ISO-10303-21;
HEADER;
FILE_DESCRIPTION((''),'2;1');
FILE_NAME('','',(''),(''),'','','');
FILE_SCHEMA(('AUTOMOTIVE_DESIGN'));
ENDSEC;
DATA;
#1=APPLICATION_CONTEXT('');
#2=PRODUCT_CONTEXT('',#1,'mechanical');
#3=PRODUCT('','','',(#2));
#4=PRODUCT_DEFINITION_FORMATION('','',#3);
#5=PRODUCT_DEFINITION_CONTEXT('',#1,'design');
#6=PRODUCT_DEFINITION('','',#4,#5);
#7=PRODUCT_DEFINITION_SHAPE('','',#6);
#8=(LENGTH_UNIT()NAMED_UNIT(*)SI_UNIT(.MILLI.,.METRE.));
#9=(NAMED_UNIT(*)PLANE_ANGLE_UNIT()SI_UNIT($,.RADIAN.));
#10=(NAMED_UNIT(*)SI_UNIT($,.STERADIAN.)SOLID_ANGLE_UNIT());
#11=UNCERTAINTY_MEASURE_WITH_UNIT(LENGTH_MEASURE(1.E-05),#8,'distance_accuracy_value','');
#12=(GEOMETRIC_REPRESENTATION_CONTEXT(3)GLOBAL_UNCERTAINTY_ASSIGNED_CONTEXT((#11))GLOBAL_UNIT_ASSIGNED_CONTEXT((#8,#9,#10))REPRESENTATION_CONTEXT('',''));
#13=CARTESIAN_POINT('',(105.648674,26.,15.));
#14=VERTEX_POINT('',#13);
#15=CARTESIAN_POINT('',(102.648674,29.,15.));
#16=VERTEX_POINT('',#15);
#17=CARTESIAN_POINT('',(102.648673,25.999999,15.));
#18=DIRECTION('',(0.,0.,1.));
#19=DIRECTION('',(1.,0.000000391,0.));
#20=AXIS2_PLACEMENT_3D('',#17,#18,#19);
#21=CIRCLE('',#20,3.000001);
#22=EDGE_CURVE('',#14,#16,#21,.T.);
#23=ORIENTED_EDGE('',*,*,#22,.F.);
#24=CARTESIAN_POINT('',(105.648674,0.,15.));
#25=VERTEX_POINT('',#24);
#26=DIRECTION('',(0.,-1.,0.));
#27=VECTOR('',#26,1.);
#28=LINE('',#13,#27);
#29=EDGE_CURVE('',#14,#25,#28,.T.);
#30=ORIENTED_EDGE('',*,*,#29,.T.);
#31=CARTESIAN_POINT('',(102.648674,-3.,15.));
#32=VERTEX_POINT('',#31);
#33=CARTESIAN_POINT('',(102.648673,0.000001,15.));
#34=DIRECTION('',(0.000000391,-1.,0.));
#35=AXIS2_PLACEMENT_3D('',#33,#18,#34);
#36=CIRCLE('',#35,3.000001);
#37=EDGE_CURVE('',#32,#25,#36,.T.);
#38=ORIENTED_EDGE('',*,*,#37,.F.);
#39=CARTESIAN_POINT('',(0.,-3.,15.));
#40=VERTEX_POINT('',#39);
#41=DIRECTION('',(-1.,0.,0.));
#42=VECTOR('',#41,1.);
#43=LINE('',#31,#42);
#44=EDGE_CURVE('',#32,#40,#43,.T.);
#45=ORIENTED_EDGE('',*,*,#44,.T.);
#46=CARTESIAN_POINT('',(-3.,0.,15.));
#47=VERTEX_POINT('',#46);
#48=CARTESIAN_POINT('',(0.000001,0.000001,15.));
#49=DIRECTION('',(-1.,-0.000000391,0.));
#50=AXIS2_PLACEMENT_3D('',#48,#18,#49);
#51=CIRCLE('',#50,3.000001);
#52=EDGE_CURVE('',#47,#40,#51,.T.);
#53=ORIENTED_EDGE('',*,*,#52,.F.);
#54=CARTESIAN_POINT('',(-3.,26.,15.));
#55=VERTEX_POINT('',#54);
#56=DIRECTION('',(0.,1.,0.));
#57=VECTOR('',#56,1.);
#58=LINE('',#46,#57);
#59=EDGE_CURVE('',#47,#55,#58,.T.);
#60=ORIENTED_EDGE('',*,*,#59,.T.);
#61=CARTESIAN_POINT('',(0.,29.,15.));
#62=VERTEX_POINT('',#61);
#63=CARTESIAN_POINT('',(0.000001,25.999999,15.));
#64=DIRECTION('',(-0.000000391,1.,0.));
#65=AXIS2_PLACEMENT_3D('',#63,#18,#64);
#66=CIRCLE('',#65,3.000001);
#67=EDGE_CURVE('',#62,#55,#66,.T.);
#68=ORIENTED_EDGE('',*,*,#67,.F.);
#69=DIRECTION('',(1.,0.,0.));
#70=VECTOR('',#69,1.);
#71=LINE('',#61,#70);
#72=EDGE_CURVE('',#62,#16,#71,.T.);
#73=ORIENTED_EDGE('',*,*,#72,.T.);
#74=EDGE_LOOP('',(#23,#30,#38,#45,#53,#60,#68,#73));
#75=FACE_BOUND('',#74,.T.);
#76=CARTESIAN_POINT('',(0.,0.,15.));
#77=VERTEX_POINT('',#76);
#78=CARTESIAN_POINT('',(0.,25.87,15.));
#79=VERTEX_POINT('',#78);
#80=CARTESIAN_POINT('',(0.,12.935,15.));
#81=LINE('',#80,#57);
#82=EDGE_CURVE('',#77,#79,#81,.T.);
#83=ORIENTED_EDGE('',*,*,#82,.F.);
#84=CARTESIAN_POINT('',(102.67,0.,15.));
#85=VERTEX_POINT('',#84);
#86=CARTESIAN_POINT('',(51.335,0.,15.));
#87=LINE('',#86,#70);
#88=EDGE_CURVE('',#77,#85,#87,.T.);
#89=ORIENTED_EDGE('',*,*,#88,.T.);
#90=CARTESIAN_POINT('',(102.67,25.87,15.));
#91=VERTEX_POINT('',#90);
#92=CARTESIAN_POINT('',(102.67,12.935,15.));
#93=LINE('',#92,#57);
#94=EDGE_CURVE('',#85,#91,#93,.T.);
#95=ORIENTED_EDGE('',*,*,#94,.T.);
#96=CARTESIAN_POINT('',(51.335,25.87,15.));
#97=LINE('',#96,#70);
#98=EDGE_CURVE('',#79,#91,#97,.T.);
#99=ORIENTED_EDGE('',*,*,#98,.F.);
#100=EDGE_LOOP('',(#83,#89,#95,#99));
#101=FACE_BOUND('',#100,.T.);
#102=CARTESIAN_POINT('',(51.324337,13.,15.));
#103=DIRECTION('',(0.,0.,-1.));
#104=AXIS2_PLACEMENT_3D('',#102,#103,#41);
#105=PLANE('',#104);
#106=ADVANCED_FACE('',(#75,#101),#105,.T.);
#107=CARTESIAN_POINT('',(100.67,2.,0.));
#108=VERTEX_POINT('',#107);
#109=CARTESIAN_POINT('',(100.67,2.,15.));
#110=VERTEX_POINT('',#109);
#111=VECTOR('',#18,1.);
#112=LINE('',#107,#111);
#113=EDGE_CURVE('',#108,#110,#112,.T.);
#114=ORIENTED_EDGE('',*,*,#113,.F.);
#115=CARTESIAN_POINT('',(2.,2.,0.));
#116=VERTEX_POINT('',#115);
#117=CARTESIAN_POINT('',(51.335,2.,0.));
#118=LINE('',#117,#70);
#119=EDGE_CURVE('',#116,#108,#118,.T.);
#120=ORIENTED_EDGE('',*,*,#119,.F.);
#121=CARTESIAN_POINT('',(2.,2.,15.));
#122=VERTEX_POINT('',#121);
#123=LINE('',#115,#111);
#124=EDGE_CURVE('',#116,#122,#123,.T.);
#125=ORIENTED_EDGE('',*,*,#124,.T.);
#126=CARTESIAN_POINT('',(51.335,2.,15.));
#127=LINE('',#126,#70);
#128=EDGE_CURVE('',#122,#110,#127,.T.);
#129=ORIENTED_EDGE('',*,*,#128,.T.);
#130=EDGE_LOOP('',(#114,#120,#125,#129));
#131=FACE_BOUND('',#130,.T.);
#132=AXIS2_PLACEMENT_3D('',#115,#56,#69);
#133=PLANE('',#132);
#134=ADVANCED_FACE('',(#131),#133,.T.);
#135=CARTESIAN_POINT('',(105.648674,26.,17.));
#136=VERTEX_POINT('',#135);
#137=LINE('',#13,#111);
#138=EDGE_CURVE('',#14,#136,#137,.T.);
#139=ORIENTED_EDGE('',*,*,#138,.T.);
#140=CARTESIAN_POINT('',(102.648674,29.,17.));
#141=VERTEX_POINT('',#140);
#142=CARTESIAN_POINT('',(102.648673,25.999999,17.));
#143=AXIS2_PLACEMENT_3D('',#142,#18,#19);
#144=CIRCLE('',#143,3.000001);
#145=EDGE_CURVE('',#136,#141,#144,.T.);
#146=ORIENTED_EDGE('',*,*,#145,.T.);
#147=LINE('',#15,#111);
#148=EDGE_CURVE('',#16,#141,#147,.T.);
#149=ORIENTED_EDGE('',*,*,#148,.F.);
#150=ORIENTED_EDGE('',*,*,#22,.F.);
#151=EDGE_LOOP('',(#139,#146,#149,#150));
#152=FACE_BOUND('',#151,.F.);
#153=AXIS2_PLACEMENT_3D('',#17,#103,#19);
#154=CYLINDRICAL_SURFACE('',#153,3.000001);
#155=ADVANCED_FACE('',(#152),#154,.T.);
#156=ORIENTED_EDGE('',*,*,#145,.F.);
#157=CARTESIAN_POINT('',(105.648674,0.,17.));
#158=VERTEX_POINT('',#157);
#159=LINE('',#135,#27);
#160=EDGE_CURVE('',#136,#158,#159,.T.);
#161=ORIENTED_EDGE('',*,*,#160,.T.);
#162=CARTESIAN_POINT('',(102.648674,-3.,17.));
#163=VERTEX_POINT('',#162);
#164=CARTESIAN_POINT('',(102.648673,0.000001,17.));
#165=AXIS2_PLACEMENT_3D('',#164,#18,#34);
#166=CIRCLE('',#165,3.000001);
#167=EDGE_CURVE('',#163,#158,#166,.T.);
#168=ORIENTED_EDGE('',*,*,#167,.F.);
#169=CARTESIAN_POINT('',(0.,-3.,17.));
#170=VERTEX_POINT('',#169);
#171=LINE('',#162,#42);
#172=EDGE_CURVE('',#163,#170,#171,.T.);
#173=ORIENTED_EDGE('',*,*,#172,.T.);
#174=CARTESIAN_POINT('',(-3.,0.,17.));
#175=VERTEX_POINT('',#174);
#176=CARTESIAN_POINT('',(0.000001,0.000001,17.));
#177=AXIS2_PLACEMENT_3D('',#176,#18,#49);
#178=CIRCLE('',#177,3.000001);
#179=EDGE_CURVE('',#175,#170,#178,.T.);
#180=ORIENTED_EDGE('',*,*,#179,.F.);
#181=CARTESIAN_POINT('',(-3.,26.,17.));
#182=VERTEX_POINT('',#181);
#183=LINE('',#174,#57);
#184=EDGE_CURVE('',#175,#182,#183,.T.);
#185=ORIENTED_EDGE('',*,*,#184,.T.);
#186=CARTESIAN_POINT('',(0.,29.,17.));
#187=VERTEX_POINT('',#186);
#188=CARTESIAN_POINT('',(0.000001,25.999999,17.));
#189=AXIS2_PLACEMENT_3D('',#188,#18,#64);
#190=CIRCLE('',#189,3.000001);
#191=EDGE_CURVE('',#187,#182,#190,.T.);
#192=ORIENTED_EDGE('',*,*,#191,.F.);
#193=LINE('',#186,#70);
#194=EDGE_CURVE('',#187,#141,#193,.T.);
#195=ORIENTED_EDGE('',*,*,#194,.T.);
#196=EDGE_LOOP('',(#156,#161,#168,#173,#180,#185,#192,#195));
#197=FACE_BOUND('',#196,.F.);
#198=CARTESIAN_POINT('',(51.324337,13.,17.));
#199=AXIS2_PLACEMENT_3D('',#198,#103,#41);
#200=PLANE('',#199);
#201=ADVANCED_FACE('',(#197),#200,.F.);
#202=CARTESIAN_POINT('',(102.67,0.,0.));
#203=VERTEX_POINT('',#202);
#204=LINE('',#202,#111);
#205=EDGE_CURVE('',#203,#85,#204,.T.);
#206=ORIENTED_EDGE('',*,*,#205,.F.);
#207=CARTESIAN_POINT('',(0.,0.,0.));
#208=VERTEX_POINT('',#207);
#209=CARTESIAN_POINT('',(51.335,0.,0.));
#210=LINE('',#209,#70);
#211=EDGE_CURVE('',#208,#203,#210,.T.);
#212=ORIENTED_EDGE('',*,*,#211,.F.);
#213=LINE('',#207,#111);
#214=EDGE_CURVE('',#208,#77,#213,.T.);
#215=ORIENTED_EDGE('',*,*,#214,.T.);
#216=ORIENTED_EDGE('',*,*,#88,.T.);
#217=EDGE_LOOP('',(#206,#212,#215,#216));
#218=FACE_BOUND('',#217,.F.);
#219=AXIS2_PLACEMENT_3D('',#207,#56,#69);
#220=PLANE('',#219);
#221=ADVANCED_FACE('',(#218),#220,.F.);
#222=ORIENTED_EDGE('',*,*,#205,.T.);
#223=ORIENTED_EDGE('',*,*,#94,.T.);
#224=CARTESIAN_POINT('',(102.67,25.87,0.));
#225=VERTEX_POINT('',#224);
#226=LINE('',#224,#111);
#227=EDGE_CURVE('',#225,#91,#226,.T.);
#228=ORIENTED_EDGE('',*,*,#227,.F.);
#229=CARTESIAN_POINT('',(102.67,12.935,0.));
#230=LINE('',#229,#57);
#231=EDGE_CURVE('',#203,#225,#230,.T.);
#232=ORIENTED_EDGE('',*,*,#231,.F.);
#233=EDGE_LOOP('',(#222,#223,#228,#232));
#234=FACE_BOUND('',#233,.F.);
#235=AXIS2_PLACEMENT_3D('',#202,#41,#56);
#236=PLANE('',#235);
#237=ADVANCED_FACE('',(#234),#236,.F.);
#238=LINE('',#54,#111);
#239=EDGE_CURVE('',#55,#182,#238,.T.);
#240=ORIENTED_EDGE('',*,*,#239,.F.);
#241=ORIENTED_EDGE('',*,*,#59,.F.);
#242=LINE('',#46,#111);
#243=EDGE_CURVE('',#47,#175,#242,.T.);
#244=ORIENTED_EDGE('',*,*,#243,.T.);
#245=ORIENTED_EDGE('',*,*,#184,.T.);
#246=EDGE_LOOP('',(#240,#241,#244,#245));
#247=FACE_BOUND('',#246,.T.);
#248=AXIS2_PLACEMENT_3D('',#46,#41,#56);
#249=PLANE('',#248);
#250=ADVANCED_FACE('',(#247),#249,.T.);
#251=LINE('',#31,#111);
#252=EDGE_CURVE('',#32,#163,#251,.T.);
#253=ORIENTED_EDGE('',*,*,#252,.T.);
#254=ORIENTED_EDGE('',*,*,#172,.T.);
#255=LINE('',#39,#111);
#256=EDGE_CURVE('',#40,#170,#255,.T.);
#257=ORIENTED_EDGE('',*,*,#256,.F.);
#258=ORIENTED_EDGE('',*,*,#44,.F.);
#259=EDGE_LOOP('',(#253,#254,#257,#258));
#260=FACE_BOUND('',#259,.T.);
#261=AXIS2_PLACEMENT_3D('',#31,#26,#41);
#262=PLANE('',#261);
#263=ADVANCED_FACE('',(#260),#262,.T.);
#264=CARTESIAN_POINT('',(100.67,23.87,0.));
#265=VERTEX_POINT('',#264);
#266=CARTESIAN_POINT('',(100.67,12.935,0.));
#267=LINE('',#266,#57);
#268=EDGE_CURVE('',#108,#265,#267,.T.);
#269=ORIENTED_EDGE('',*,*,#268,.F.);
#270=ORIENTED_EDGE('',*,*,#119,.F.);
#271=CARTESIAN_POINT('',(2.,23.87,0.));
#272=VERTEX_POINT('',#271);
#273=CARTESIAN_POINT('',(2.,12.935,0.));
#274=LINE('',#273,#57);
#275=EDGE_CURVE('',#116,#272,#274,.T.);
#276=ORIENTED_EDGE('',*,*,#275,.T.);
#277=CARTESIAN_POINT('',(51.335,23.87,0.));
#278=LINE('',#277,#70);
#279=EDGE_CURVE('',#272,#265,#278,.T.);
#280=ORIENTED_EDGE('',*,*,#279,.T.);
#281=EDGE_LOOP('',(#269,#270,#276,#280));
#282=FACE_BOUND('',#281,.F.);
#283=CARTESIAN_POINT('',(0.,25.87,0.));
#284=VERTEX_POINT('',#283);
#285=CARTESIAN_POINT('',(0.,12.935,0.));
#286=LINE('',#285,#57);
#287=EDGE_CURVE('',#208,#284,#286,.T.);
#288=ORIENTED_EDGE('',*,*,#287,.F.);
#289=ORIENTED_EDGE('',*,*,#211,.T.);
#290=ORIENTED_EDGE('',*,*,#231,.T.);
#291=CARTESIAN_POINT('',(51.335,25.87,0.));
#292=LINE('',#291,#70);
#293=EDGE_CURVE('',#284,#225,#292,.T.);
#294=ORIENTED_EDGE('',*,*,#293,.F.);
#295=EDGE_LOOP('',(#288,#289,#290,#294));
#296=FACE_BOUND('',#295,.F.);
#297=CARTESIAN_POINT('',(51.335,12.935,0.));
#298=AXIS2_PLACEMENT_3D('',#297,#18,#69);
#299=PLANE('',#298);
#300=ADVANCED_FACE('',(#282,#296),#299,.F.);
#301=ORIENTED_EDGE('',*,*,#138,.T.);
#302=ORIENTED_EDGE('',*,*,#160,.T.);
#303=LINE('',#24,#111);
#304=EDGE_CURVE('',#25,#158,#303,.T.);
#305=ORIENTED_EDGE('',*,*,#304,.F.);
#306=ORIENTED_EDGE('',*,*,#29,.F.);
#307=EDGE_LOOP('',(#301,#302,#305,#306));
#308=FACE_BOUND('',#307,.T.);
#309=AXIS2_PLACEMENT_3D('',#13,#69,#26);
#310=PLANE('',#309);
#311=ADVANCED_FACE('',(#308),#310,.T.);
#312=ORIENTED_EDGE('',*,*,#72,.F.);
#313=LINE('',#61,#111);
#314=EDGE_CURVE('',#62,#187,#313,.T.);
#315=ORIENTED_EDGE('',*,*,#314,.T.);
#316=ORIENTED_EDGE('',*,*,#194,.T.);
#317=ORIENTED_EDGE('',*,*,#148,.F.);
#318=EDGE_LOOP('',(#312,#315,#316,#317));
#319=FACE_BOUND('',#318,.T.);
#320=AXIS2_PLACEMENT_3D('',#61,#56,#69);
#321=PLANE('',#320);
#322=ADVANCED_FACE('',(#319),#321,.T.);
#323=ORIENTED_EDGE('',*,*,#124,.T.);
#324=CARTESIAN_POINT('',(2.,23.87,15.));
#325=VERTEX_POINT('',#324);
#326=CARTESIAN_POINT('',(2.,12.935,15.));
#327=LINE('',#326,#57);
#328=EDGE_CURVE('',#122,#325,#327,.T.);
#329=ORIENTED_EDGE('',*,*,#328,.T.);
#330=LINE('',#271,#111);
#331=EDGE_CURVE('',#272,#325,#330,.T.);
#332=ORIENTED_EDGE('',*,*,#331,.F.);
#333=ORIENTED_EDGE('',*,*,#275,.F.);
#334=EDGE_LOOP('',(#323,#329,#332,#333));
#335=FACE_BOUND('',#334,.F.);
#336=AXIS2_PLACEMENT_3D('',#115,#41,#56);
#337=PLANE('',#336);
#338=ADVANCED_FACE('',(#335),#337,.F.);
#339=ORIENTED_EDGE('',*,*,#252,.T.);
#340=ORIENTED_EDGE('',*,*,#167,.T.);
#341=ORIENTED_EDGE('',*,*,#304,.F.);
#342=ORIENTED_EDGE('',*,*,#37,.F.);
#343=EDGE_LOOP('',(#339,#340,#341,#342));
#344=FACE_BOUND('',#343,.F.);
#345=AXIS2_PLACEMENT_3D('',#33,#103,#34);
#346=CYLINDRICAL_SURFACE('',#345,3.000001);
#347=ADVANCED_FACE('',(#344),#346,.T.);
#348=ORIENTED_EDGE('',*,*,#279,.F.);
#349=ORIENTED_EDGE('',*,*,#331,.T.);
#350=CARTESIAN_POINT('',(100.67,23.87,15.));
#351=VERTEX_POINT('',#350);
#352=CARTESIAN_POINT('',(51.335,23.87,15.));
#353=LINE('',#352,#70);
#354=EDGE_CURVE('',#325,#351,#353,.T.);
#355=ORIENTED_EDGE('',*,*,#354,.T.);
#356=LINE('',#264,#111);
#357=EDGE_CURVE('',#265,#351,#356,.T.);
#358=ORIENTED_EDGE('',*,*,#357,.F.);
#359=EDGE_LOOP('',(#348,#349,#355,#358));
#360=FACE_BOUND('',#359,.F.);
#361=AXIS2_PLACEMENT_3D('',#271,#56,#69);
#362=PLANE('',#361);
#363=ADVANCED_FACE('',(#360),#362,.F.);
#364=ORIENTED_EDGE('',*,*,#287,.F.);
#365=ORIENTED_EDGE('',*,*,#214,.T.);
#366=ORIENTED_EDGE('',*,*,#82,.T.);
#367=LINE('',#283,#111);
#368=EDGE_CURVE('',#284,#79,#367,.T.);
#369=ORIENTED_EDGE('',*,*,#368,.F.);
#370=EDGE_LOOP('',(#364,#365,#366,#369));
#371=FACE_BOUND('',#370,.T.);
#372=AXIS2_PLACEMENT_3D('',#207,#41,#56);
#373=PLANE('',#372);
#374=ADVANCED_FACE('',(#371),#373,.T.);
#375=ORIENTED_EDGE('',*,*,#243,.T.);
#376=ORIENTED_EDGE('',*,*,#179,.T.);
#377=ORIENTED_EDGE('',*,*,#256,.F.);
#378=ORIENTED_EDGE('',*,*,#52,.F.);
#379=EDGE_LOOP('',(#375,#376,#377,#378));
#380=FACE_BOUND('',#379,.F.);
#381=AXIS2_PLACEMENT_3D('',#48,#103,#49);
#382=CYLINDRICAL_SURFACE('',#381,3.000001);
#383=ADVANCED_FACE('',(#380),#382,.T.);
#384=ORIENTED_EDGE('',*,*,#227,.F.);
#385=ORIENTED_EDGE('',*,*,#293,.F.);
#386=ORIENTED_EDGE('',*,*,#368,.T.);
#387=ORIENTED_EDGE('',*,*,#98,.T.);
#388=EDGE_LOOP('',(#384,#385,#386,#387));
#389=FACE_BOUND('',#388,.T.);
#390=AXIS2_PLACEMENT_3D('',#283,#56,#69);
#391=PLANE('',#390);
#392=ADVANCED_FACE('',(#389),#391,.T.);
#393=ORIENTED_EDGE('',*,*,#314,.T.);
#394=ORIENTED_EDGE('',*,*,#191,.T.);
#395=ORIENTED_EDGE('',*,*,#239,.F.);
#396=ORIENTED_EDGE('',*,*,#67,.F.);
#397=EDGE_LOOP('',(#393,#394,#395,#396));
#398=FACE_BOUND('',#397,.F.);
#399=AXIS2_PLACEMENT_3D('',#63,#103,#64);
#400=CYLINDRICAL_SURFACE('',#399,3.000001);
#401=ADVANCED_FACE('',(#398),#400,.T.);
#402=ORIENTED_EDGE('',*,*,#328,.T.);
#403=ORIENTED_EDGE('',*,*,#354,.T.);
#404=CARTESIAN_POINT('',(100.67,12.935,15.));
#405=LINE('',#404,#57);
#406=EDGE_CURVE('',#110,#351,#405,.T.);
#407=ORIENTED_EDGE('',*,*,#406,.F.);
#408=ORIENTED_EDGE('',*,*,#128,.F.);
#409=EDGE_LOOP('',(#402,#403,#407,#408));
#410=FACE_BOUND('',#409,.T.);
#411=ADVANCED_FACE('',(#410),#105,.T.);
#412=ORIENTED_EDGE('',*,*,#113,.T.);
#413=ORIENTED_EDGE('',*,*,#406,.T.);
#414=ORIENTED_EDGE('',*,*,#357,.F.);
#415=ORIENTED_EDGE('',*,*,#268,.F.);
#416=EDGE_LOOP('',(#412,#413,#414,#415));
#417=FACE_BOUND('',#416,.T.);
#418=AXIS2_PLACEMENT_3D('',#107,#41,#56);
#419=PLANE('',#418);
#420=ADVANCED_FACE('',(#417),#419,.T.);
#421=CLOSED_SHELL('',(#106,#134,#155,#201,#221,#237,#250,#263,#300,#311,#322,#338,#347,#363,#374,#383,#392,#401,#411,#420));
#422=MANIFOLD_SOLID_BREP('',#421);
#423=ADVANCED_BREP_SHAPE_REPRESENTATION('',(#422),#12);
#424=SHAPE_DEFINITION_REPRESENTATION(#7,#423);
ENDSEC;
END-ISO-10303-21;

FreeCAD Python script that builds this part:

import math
import FreeCAD as App
import Part
import Sketcher
Q = App.Units.Quantity

doc = App.newDocument("Part")
body = doc.addObject("PartDesign::Body", "Body")

sketch1 = body.newObject("Sketcher::SketchObject", "Sketch")
sketch1.AttachmentSupport = (doc.getObject("XY_Plane"), [""])
sketch1.MapMode = "FlatFace"
sketch1.addGeometry(Part.LineSegment(App.Vector(0, 26, 0), App.Vector(0, 0, 0)), False)
sketch1.addGeometry(Part.LineSegment(App.Vector(0, 0, 0), App.Vector(103, 0, 0)), False)
sketch1.addGeometry(Part.LineSegment(App.Vector(103, 0, 0), App.Vector(103, 26, 0)), False)
sketch1.addGeometry(Part.LineSegment(App.Vector(103, 26, 0), App.Vector(0, 26, 0)), False)
sketch1.addGeometry(Part.LineSegment(App.Vector(101, 2, 0), App.Vector(2, 2, 0)), False)
sketch1.addGeometry(Part.LineSegment(App.Vector(2, 2, 0), App.Vector(2, 24, 0)), False)
sketch1.addGeometry(Part.LineSegment(App.Vector(2, 24, 0), App.Vector(101, 24, 0)), False)
sketch1.addGeometry(Part.LineSegment(App.Vector(101, 24, 0), App.Vector(101, 2, 0)), False)
sketch1.addConstraint(Sketcher.Constraint("Coincident", 0, 2, 1, 1))
sketch1.addConstraint(Sketcher.Constraint("Coincident", 1, 2, 2, 1))
sketch1.addConstraint(Sketcher.Constraint("Coincident", 2, 2, 3, 1))
sketch1.addConstraint(Sketcher.Constraint("Coincident", 3, 2, 0, 1))
sketch1.addConstraint(Sketcher.Constraint("Coincident", 4, 2, 5, 1))
sketch1.addConstraint(Sketcher.Constraint("Coincident", 5, 2, 6, 1))
sketch1.addConstraint(Sketcher.Constraint("Coincident", 6, 2, 7, 1))
sketch1.addConstraint(Sketcher.Constraint("Coincident", 7, 2, 4, 1))
sketch1.addConstraint(Sketcher.Constraint("Vertical", 0))
sketch1.addConstraint(Sketcher.Constraint("Horizontal", 1))
sketch1.addConstraint(Sketcher.Constraint("Vertical", 2))
sketch1.addConstraint(Sketcher.Constraint("Horizontal", 3))
sketch1.addConstraint(Sketcher.Constraint("Horizontal", 4))
sketch1.addConstraint(Sketcher.Constraint("Vertical", 5))
sketch1.addConstraint(Sketcher.Constraint("Horizontal", 6))
sketch1.addConstraint(Sketcher.Constraint("Vertical", 7))
sketch1.addConstraint(Sketcher.Constraint("Coincident", 0, 2, -1, 1))
sketch1.addConstraint(Sketcher.Constraint("DistanceX", -1, 1, 4, 2, Q("2 mm")))
sketch1.addConstraint(Sketcher.Constraint("DistanceY", -1, 1, 4, 2, Q("2 mm")))
sketch1.addConstraint(Sketcher.Constraint("DistanceY", 5, 2, 3, 2, Q("2 mm")))
sketch1.addConstraint(Sketcher.Constraint("DistanceX", 6, 2, 2, 2, Q("2 mm")))
sketch1.addConstraint(Sketcher.Constraint("DistanceX", 1, 1, 1, 2, Q("102.67 mm")))
sketch1.addConstraint(Sketcher.Constraint("DistanceY", 0, 2, 0, 1, Q("25.87 mm")))
pad1 = body.newObject("PartDesign::Pad", "Pad")
pad1.Profile = sketch1
pad1.Length = 15

sketch2 = body.newObject("Sketcher::SketchObject", "Sketch001")
sketch2.AttachmentSupport = (doc.getObject("XY_Plane"), [""])
sketch2.MapMode = "FlatFace"
sketch2.AttachmentOffset = App.Placement(App.Vector(0, 0, 15), App.Rotation())
sketch2.addGeometry(Part.LineSegment(App.Vector(102.6, 29, 0), App.Vector(0, 29, 0)), False)
sketch2.addGeometry(Part.ArcOfCircle(Part.Circle(App.Vector(0, 26, 0), App.Vector(0, 0, 1), 3), math.radians(90), math.radians(180)), False)
sketch2.addGeometry(Part.LineSegment(App.Vector(-3, 26, 0), App.Vector(-3, 0, 0)), False)
sketch2.addGeometry(Part.ArcOfCircle(Part.Circle(App.Vector(0, 0, 0), App.Vector(0, 0, 1), 3), math.radians(-180), math.radians(-90)), False)
sketch2.addGeometry(Part.LineSegment(App.Vector(0, -3, 0), App.Vector(102.6, -3, 0)), False)
sketch2.addGeometry(Part.ArcOfCircle(Part.Circle(App.Vector(102.6, 0, 0), App.Vector(0, 0, 1), 3), math.radians(-90), math.radians(0)), False)
sketch2.addGeometry(Part.LineSegment(App.Vector(105.6, 0, 0), App.Vector(105.6, 26, 0)), False)
sketch2.addGeometry(Part.ArcOfCircle(Part.Circle(App.Vector(102.6, 26, 0), App.Vector(0, 0, 1), 3), math.radians(0), math.radians(90)), False)
sketch2.addConstraint(Sketcher.Constraint("Tangent", 0, 2, 1, 1))
sketch2.addConstraint(Sketcher.Constraint("Tangent", 1, 2, 2, 1))
sketch2.addConstraint(Sketcher.Constraint("Tangent", 2, 2, 3, 1))
sketch2.addConstraint(Sketcher.Constraint("Tangent", 3, 2, 4, 1))
sketch2.addConstraint(Sketcher.Constraint("Tangent", 4, 2, 5, 1))
sketch2.addConstraint(Sketcher.Constraint("Tangent", 5, 2, 6, 1))
sketch2.addConstraint(Sketcher.Constraint("Tangent", 6, 2, 7, 1))
sketch2.addConstraint(Sketcher.Constraint("Tangent", 7, 2, 0, 1))
sketch2.addConstraint(Sketcher.Constraint("Horizontal", 0))
sketch2.addConstraint(Sketcher.Constraint("Vertical", 2))
sketch2.addConstraint(Sketcher.Constraint("Horizontal", 4))
sketch2.addConstraint(Sketcher.Constraint("Vertical", 6))
sketch2.addConstraint(Sketcher.Constraint("Coincident", 3, 3, -1, 1))
sketch2.addConstraint(Sketcher.Constraint("Equal", 1, 3))
sketch2.addConstraint(Sketcher.Constraint("Equal", 3, 5))
sketch2.addConstraint(Sketcher.Constraint("Equal", 5, 7))
sketch2.addConstraint(Sketcher.Constraint("Radius", 1, Q("3.000001 mm")))
sketch2.addConstraint(Sketcher.Constraint("DistanceY", 2, 2, 2, 1, Q("26 mm")))
sketch2.addConstraint(Sketcher.Constraint("DistanceX", 0, 2, 0, 1, Q("102.648674 mm")))
pad2 = body.newObject("PartDesign::Pad", "Pad001")
pad2.Profile = sketch2
pad2.Length = 2

doc.recompute()
